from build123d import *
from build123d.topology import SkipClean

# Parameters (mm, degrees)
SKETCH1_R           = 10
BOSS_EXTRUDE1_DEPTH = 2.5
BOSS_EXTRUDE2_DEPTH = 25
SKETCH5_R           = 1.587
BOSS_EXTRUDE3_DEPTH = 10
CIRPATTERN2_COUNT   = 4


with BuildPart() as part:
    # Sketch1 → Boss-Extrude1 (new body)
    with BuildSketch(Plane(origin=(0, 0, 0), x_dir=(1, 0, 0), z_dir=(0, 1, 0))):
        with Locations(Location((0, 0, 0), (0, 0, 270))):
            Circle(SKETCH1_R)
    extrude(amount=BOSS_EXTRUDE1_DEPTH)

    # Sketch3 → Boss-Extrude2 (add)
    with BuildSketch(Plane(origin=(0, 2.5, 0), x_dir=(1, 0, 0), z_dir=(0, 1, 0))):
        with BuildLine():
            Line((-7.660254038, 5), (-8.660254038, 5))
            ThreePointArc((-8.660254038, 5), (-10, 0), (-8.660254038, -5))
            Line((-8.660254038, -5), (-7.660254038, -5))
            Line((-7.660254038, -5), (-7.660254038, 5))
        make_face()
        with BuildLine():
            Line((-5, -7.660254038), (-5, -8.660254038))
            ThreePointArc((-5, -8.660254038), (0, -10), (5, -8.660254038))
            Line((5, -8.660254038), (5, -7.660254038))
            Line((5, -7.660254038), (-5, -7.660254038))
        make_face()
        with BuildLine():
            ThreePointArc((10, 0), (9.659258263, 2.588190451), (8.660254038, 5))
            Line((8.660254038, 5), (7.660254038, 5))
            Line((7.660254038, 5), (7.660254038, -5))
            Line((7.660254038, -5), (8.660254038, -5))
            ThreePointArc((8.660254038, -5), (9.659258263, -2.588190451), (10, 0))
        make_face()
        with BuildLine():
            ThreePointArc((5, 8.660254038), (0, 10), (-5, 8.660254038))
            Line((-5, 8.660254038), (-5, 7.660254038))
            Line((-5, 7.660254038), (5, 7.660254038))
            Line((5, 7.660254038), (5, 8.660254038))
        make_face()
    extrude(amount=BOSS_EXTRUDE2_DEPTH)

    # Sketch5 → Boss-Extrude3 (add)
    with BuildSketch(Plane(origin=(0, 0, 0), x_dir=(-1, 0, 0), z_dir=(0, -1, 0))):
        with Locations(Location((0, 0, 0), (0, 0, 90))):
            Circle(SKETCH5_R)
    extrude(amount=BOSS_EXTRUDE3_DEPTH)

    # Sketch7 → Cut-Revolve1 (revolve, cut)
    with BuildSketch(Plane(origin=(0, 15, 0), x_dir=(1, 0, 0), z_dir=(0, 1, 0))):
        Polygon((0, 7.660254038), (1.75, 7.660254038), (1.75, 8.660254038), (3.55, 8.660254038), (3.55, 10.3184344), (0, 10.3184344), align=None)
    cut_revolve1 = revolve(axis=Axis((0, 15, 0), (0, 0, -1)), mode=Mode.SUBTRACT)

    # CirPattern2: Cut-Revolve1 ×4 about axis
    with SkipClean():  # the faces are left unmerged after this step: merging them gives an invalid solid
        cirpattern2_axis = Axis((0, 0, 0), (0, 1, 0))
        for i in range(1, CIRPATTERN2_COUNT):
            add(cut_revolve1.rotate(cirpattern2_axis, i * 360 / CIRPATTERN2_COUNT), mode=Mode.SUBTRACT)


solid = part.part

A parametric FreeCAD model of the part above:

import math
import FreeCAD as App
import Part
import Sketcher

V = App.Vector
Q = App.Units.Quantity

doc = App.newDocument("Part")
body = doc.addObject("PartDesign::Body", "Body")

# Sketch on XZ plane
sketch1 = body.newObject("Sketcher::SketchObject", "Sketch")
sketch1.AttachmentSupport = (doc.getObject("XZ_Plane"), [""])
sketch1.MapMode = "FlatFace"
sketch1.addGeometry(Part.Circle(V(0, 0, 0), V(0, 0, 1), 10), False)
sketch1.addConstraint(Sketcher.Constraint("Coincident", 0, 3, -1, 1))
sketch1.addConstraint(Sketcher.Constraint("Diameter", 0, Q("20 mm")))
pad1 = body.newObject("PartDesign::Pad", "Pad")
pad1.Profile = sketch1
pad1.Length = 2.5
pad1.Reversed = True

# Sketch on XZ plane
sketch2 = body.newObject("Sketcher::SketchObject", "Sketch001")
sketch2.AttachmentSupport = (doc.getObject("XZ_Plane"), [""])
sketch2.MapMode = "FlatFace"
sketch2.AttachmentOffset = App.Placement(V(0, 0, -2.5), App.Rotation())
sketch2.addGeometry(Part.LineSegment(V(-7.7, -5, 0), V(-8.7, -5, 0)), False)
sketch2.addGeometry(Part.ArcOfCircle(Part.Circle(V(0, 0, 0), V(0, 0, 1), 10), math.radians(150), math.radians(210)), False)
sketch2.addGeometry(Part.LineSegment(V(-8.7, 5, 0), V(-7.7, 5, 0)), False)
sketch2.addGeometry(Part.LineSegment(V(-7.7, 5, 0), V(-7.7, -5, 0)), False)
sketch2.addGeometry(Part.LineSegment(V(-5, 7.7, 0), V(-5, 8.7, 0)), False)
sketch2.addGeometry(Part.ArcOfCircle(Part.Circle(V(0, 0, 0), V(0, 0, 1), 10), math.radians(60), math.radians(120)), False)
sketch2.addGeometry(Part.LineSegment(V(5, 8.7, 0), V(5, 7.7, 0)), False)
sketch2.addGeometry(Part.LineSegment(V(5, 7.7, 0), V(-5, 7.7, 0)), False)
sketch2.addGeometry(Part.ArcOfCircle(Part.Circle(V(0, 0, 0), V(0, 0, 1), 10), math.radians(-30), math.radians(0)), False)
sketch2.addGeometry(Part.LineSegment(V(8.7, -5, 0), V(7.7, -5, 0)), False)
sketch2.addGeometry(Part.LineSegment(V(7.7, -5, 0), V(7.7, 5, 0)), False)
sketch2.addGeometry(Part.LineSegment(V(7.7, 5, 0), V(8.7, 5, 0)), False)
sketch2.addGeometry(Part.ArcOfCircle(Part.Circle(V(0, 0, 0), V(0, 0, 1), 10), math.radians(0), math.radians(30)), False)
sketch2.addGeometry(Part.ArcOfCircle(Part.Circle(V(0, 0, 0), V(0, 0, 1), 10), math.radians(-120), math.radians(-60)), False)
sketch2.addGeometry(Part.LineSegment(V(-5, -8.7, 0), V(-5, -7.7, 0)), False)
sketch2.addGeometry(Part.LineSegment(V(-5, -7.7, 0), V(5, -7.7, 0)), False)
sketch2.addGeometry(Part.LineSegment(V(5, -7.7, 0), V(5, -8.7, 0)), False)
sketch2.addConstraint(Sketcher.Constraint("Coincident", 0, 2, 1, 2))
sketch2.addConstraint(Sketcher.Constraint("Coincident", 1, 1, 2, 1))
sketch2.addConstraint(Sketcher.Constraint("Coincident", 2, 2, 3, 1))
sketch2.addConstraint(Sketcher.Constraint("Coincident", 3, 2, 0, 1))
sketch2.addConstraint(Sketcher.Constraint("Coincident", 4, 2, 5, 2))
sketch2.addConstraint(Sketcher.Constraint("Coincident", 5, 1, 6, 1))
sketch2.addConstraint(Sketcher.Constraint("Coincident", 6, 2, 7, 1))
sketch2.addConstraint(Sketcher.Constraint("Coincident", 7, 2, 4, 1))
sketch2.addConstraint(Sketcher.Constraint("Coincident", 8, 1, 9, 1))
sketch2.addConstraint(Sketcher.Constraint("Coincident", 9, 2, 10, 1))
sketch2.addConstraint(Sketcher.Constraint("Coincident", 10, 2, 11, 1))
sketch2.addConstraint(Sketcher.Constraint("Coincident", 11, 2, 12, 2))
sketch2.addConstraint(Sketcher.Constraint("Tangent", 12, 1, 8, 2))
sketch2.addConstraint(Sketcher.Constraint("Coincident", 13, 1, 14, 1))
sketch2.addConstraint(Sketcher.Constraint("Coincident", 14, 2, 15, 1))
sketch2.addConstraint(Sketcher.Constraint("Coincident", 15, 2, 16, 1))
sketch2.addConstraint(Sketcher.Constraint("Coincident", 16, 2, 13, 2))
sketch2.addConstraint(Sketcher.Constraint("Horizontal", 0))
sketch2.addConstraint(Sketcher.Constraint("Horizontal", 2))
sketch2.addConstraint(Sketcher.Constraint("Vertical", 3))
sketch2.addConstraint(Sketcher.Constraint("Vertical", 4))
sketch2.addConstraint(Sketcher.Constraint("Vertical", 6))
sketch2.addConstraint(Sketcher.Constraint("Horizontal", 7))
sketch2.addConstraint(Sketcher.Constraint("Horizontal", 9))
sketch2.addConstraint(Sketcher.Constraint("Vertical", 10))
sketch2.addConstraint(Sketcher.Constraint("Horizontal", 11))
sketch2.addConstraint(Sketcher.Constraint("Vertical", 14))
sketch2.addConstraint(Sketcher.Constraint("Horizontal", 15))
sketch2.addConstraint(Sketcher.Constraint("Vertical", 16))
sketch2.addConstraint(Sketcher.Constraint("Coincident", 1, 3, -1, 1))
sketch2.addConstraint(Sketcher.Constraint("Coincident", 5, 3, -1, 1))
sketch2.addConstraint(Sketcher.Constraint("Coincident", 8, 3, -1, 1))
sketch2.addConstraint(Sketcher.Constraint("Coincident", 13, 3, -1, 1))
sketch2.addConstraint(Sketcher.Constraint("Equal", 1, 5))
sketch2.addConstraint(Sketcher.Constraint("Equal", 5, 8))
sketch2.addConstraint(Sketcher.Constraint("Equal", 8, 12))
sketch2.addConstraint(Sketcher.Constraint("Equal", 12, 13))
sketch2.addConstraint(Sketcher.Constraint("Symmetric", 2, 2, 9, 2, -1, 1))
sketch2.addConstraint(Sketcher.Constraint("Symmetric", 6, 2, 14, 2, -1, 1))
sketch2.addConstraint(Sketcher.Constraint("PointOnObject", 12, 1, -1))
sketch2.addConstraint(Sketcher.Constraint("Horizontal", 4, 2, 5, 1))
sketch2.addConstraint(Sketcher.Constraint("Horizontal", 3, 2, 8, 1))
sketch2.addConstraint(Sketcher.Constraint("Horizontal", 2, 2, 10, 2))
sketch2.addConstraint(Sketcher.Constraint("Horizontal", 13, 1, 16, 2))
sketch2.addConstraint(Sketcher.Constraint("Equal", 15, 3))
sketch2.addConstraint(Sketcher.Constraint("Equal", 11, 4))
sketch2.addConstraint(Sketcher.Constraint("Radius", 1, Q("10 mm")))
sketch2.addConstraint(Sketcher.Constraint("DistanceX", 0, 2, 0, 1, Q("1 mm")))
sketch2.addConstraint(Sketcher.Constraint("DistanceX", 7, 2, 7, 1, Q("10 mm")))
pad2 = body.newObject("PartDesign::Pad", "Pad001")
pad2.Profile = sketch2
pad2.Length = 25
pad2.Reversed = True

# Sketch on XZ plane
sketch3 = body.newObject("Sketcher::SketchObject", "Sketch002")
sketch3.AttachmentSupport = (doc.getObject("XZ_Plane"), [""])
sketch3.MapMode = "FlatFace"
sketch3.addGeometry(Part.Circle(V(0, 0, 0), V(0, 0, 1), 1.6), False)
sketch3.addConstraint(Sketcher.Constraint("Coincident", 0, 3, -1, 1))
sketch3.addConstraint(Sketcher.Constraint("Diameter", 0, Q("3.174 mm")))
pad3 = body.newObject("PartDesign::Pad", "Pad002")
pad3.Profile = sketch3
pad3.Length = 10

# Sketch on XZ plane
sketch4 = body.newObject("Sketcher::SketchObject", "Sketch003")
sketch4.AttachmentSupport = (doc.getObject("XZ_Plane"), [""])
sketch4.MapMode = "FlatFace"
sketch4.AttachmentOffset = App.Placement(V(0, 0, -15), App.Rotation())
sketch4.addGeometry(Part.LineSegment(V(0, -7.7, 0), V(1.8, -7.7, 0)), False)
sketch4.addGeometry(Part.LineSegment(V(1.8, -7.7, 0), V(1.8, -8.7, 0)), False)
sketch4.addGeometry(Part.LineSegment(V(1.8, -8.7, 0), V(3.5, -8.7, 0)), False)
sketch4.addGeometry(Part.LineSegment(V(3.5, -8.7, 0), V(3.5, -10.3, 0)), False)
sketch4.addGeometry(Part.LineSegment(V(3.5, -10.3, 0), V(0, -10.3, 0)), False)
sketch4.addGeometry(Part.LineSegment(V(0, -10.3, 0), V(0, -7.7, 0)), False)
sketch4.addConstraint(Sketcher.Constraint("Coincident", 0, 2, 1, 1))
sketch4.addConstraint(Sketcher.Constraint("Coincident", 1, 2, 2, 1))
sketch4.addConstraint(Sketcher.Constraint("Coincident", 2, 2, 3, 1))
sketch4.addConstraint(Sketcher.Constraint("Coincident", 3, 2, 4, 1))
sketch4.addConstraint(Sketcher.Constraint("Coincident", 4, 2, 5, 1))
sketch4.addConstraint(Sketcher.Constraint("Coincident", 5, 2, 0, 1))
sketch4.addConstraint(Sketcher.Constraint("Horizontal", 0))
sketch4.addConstraint(Sketcher.Constraint("Vertical", 1))
sketch4.addConstraint(Sketcher.Constraint("Horizontal", 2))
sketch4.addConstraint(Sketcher.Constraint("Vertical", 3))
sketch4.addConstraint(Sketcher.Constraint("Horizontal", 4))
sketch4.addConstraint(Sketcher.Constraint("Vertical", 5))
sketch4.addConstraint(Sketcher.Constraint("PointOnObject", 4, 2, -2))
sketch4.addConstraint(Sketcher.Constraint("DistanceY", 1, 2, 1, 1, Q("1 mm")))
sketch4.addConstraint(Sketcher.Constraint("DistanceX", 2, 1, 2, 2, Q("1.8 mm")))
sketch4.addConstraint(Sketcher.Constraint("DistanceX", 0, 1, 0, 2, Q("1.75 mm")))
sketch4.addConstraint(Sketcher.Constraint("DistanceY", 3, 2, 3, 1, Q("1.65818 mm")))
sketch4.addConstraint(Sketcher.Constraint("DistanceY", 0, 2, -1, 1, Q("7.660254 mm")))
groove = body.newObject("PartDesign::Groove", "Groove")
groove.Profile = sketch4
groove.ReferenceAxis = (sketch4, ["V_Axis"])
groove.Angle = 360
doc.recompute()

polarpattern = body.newObject("PartDesign::PolarPattern", "PolarPattern")
polarpattern.Originals = [groove]
polarpattern.Axis = (doc.getObject("Y_Axis"), [""])
polarpattern.Angle = 360
polarpattern.Occurrences = 4
body.Tip = polarpattern

doc.recompute()
